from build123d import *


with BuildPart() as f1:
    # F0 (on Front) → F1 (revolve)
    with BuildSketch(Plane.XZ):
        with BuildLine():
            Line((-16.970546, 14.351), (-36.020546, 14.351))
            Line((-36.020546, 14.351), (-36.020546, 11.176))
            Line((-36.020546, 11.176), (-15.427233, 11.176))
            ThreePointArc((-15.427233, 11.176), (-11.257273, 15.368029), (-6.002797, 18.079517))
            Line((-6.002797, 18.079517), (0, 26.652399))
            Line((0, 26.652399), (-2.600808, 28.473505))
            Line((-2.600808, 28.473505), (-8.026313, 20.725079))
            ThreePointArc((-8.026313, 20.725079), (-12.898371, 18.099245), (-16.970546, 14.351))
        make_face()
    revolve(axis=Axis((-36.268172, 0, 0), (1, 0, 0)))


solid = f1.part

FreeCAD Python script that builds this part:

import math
import FreeCAD as App
import Part
import Sketcher
from FreeCAD import Vector
Q = App.Units.Quantity

doc = App.newDocument("Part")
body = doc.addObject("PartDesign::Body", "Body")

sketch1 = body.newObject("Sketcher::SketchObject", "Sketch")
sketch1.AttachmentSupport = (doc.getObject("XZ_Plane"), [""])
sketch1.MapMode = "FlatFace"
sketch1.addGeometry([
    Part.LineSegment(Vector(-16.970546, 14.351, 0), Vector(-36.020546, 14.351, 0)),
    Part.LineSegment(Vector(-36.020546, 14.351, 0), Vector(-36.020546, 11.176, 0)),
    Part.LineSegment(Vector(-36.020546, 11.176, 0), Vector(-15.427233, 11.176, 0)),
    Part.ArcOfCircle(Part.Circle(Vector(-0.000003, 0.000005, 0), Vector(0, 0, 1), 19.049995), math.radians(108.367297), math.radians(144.079187)),
    Part.LineSegment(Vector(-6.002797, 18.079517, 0), Vector(0, 26.652399, 0)),
    Part.LineSegment(Vector(0, 26.652399, 0), Vector(-2.600808, 28.473505, 0)),
    Part.LineSegment(Vector(-2.600808, 28.473505, 0), Vector(-8.026313, 20.725079, 0)),
    Part.ArcOfCircle(Part.Circle(Vector(-0.000013, 0.000016, 0), Vector(0, 0, 1), 22.22498), math.radians(111.170143), math.radians(139.780758)),
], False)
sketch1.addConstraint([
    Sketcher.Constraint("Coincident", 0, 2, 1, 1),
    Sketcher.Constraint("Coincident", 1, 2, 2, 1),
    Sketcher.Constraint("Coincident", 2, 2, 3, 2),
    Sketcher.Constraint("Coincident", 3, 1, 4, 1),
    Sketcher.Constraint("Coincident", 4, 2, 5, 1),
    Sketcher.Constraint("Coincident", 5, 2, 6, 1),
    Sketcher.Constraint("Coincident", 6, 2, 7, 1),
    Sketcher.Constraint("Coincident", 7, 2, 0, 1),
    Sketcher.Constraint("Horizontal", 0),
    Sketcher.Constraint("Vertical", 1),
    Sketcher.Constraint("Horizontal", 2),
    Sketcher.Constraint("Coincident", 3, 3, -1, 1),
    Sketcher.Constraint("PointOnObject", 4, 2, -2),
    Sketcher.Constraint("Perpendicular", 4, 5),
    Sketcher.Constraint("Perpendicular", 5, 6),
    Sketcher.Constraint("Angle", 4, Q("54.999998 deg")),
    Sketcher.Constraint("DistanceX", 0, 2, 0, 1, Q("0.75 in")),
    Sketcher.Constraint("DistanceY", 1, 2, 1, 1, Q("0.125 in")),
    Sketcher.Constraint("DistanceY", -1, 1, 1, 2, Q("0.44 in")),
    Sketcher.Constraint("Distance", 5, Q("0.125 in")),
    Sketcher.Constraint("Radius", 7, 22.22498),
    Sketcher.Constraint("Radius", 3, 19.049995),
    Sketcher.Constraint("DistanceY", -1, 1, 4, 2, 26.652399),
    Sketcher.Constraint("DistanceY", 7, 3, 3, 1, 18.079501),
    Sketcher.Constraint("DistanceX", 6, 2, 7, 3, 8.0263),
])
revolution = body.newObject("PartDesign::Revolution", "Revolution")
revolution.Profile = sketch1
revolution.ReferenceAxis = (sketch1, ["H_Axis"])
revolution.Angle = 360

doc.recompute()
